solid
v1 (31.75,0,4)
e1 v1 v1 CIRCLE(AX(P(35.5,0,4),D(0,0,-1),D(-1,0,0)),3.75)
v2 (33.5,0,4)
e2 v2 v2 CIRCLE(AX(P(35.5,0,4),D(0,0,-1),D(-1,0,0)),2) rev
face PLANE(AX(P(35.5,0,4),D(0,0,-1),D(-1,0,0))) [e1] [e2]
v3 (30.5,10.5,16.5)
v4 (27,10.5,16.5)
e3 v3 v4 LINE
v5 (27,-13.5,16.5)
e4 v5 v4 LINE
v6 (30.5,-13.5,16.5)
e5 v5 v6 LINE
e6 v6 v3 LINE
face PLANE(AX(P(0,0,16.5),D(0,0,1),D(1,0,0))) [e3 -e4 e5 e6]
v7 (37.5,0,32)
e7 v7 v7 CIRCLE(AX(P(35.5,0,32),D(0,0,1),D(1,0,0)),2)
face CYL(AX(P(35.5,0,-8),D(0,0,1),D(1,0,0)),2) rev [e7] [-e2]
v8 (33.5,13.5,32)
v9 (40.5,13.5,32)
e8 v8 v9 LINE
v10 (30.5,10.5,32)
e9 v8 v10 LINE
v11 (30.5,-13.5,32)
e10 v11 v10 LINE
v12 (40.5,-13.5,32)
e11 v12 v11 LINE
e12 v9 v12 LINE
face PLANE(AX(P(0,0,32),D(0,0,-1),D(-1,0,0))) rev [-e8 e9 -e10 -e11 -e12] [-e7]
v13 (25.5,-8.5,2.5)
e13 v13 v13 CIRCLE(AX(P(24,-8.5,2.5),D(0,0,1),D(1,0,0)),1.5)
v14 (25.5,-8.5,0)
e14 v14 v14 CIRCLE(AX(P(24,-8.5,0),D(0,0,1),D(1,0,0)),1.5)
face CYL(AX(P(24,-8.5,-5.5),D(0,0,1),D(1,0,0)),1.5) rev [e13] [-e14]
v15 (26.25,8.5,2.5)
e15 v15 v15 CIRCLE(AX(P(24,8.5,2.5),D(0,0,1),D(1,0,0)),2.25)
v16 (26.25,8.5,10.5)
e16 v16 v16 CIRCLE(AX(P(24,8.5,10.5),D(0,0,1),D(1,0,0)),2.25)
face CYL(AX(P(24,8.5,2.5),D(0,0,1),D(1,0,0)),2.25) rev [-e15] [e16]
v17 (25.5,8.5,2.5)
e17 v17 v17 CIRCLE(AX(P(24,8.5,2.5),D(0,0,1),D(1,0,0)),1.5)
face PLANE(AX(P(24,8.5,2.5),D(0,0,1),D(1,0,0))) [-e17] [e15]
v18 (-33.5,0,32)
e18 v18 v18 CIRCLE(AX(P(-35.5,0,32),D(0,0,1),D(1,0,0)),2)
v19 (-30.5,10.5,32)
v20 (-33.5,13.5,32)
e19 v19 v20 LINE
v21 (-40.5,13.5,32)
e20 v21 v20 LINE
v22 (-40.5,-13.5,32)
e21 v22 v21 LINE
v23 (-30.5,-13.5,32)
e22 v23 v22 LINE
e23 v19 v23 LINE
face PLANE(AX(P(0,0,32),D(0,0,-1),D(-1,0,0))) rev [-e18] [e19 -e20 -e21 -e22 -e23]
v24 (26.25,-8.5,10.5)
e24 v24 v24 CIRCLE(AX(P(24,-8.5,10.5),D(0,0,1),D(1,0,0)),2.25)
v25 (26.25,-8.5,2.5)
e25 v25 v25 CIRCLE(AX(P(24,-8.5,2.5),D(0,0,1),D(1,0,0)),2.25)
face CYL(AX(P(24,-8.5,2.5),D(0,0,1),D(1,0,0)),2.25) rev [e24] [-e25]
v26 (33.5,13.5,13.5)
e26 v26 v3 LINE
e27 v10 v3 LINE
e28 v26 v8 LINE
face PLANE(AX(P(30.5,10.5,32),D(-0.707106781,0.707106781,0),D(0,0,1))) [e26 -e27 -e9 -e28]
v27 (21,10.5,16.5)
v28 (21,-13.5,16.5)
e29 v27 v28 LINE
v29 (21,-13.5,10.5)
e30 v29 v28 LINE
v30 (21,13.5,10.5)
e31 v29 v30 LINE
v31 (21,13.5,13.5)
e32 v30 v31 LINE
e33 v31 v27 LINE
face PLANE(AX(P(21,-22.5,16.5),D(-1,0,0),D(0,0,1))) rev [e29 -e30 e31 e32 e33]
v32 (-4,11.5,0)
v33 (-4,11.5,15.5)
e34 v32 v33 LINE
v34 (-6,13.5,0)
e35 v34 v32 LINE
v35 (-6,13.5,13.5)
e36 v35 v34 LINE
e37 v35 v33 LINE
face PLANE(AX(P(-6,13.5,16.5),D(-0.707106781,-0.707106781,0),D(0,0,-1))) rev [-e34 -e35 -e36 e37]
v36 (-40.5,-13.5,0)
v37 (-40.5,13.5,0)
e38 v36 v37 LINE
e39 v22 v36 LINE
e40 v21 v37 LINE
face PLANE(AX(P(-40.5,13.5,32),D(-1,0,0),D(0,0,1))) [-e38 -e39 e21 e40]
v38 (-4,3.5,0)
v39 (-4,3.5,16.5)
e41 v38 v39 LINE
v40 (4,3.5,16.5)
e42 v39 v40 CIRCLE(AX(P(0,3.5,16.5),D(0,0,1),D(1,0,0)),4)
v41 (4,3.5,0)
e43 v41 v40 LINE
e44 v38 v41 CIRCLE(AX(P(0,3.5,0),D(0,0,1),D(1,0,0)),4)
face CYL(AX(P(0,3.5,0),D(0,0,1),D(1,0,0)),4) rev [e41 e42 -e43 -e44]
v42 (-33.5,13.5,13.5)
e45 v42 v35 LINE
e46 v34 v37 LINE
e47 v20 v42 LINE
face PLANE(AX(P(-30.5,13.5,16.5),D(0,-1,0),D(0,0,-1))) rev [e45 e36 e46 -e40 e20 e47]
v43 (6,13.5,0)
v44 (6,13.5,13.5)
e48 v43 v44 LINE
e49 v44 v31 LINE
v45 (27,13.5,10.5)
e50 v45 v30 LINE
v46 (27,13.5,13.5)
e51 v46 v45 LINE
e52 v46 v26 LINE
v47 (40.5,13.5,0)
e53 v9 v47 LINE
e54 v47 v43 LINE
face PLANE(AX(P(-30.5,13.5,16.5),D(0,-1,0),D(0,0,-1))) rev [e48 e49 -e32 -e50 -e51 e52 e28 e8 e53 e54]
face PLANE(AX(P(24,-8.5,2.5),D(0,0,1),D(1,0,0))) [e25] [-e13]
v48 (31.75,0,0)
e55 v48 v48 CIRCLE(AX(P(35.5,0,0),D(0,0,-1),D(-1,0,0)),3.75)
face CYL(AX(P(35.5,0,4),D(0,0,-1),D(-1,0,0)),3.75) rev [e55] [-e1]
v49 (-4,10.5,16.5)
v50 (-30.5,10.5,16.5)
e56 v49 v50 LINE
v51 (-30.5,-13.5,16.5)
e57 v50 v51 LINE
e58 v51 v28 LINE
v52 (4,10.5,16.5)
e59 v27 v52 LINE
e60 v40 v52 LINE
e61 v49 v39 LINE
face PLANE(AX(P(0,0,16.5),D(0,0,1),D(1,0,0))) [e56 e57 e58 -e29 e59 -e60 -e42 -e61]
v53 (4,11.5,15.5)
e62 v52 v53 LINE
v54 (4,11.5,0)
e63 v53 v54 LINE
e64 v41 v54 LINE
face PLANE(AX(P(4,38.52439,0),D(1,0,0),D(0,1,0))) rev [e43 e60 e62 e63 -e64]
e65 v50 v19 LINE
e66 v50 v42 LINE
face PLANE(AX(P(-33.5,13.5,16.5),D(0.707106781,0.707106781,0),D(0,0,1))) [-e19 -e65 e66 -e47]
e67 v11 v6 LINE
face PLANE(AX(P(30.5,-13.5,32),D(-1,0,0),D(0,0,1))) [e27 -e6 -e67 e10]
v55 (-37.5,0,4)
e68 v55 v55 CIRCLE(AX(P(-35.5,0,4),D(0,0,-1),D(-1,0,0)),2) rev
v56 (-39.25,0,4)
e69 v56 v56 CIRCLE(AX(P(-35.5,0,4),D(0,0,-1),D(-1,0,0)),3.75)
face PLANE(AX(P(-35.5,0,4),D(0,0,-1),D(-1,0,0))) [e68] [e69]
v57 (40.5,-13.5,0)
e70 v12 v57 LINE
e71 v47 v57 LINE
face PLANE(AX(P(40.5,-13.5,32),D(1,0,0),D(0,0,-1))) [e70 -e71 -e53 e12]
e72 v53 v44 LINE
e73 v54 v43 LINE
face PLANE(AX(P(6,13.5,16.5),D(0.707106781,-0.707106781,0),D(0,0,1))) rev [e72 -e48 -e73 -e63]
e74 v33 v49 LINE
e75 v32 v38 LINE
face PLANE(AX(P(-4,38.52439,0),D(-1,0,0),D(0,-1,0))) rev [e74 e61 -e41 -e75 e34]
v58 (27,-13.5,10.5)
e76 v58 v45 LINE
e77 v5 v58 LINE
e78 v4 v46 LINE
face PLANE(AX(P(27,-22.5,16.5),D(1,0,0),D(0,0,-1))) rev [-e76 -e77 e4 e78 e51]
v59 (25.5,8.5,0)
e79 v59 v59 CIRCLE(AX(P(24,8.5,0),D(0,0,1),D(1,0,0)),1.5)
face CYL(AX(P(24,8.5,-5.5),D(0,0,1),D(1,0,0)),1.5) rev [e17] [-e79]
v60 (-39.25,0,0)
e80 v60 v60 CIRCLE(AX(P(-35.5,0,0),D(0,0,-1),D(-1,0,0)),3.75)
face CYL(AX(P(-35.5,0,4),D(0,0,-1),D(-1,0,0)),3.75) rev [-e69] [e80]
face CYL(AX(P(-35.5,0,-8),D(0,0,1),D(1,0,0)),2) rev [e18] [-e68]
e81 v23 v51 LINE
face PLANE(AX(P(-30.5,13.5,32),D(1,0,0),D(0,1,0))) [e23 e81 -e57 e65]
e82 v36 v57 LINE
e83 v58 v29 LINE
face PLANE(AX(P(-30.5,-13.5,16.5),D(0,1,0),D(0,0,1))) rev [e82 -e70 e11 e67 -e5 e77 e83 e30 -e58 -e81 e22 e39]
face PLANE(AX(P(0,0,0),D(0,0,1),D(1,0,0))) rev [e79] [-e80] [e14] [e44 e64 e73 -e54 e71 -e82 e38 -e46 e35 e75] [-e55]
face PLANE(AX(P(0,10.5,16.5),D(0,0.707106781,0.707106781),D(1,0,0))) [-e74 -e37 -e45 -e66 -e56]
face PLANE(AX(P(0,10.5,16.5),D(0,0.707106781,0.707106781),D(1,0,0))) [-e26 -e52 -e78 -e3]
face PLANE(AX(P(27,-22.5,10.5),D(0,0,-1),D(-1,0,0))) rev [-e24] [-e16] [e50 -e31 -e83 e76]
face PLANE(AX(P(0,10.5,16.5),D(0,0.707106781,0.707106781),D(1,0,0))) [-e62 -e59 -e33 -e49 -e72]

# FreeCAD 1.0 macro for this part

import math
import FreeCAD as App
import Part
import Sketcher


def edges_at(feature, points):
    """Names of the edges that pass closest to the given points."""
    edges = feature.Shape.Edges
    near = lambda p: min(range(len(edges)), key=lambda i: edges[i].distToShape(Part.Vertex(*p))[0])
    return sorted({f"Edge{near(p) + 1}" for p in points})

doc = App.newDocument("Part")
params = doc.addObject("Spreadsheet::Sheet", "Params")
for row, (alias, value) in enumerate([
    ("sketch1_width", "61 mm"),
    ("sketch1_height", "27 mm"),
    ("pad1_length", "16.5 mm"),
    ("sketch2_radius", "4 mm"),
    ("pocket1_length", "16.5 mm"),
    ("sketch3_width", "10 mm"),
    ("sketch3_height", "27 mm"),
    ("pad2_length", "32 mm"),
    ("sketch4_diameter", "4 mm"),
    ("pocket2_length", "40 mm"),
    ("sketch5_diameter", "7.5 mm"),
    ("pocket3_length", "4 mm"),
    ("chamfer_size", "2 mm"),
    ("chamfer2_size", "3 mm"),
    ("sketch6_width", "6 mm"),
    ("pocket4_length", "36 mm"),
    ("sketch7_diameter", "4.5 mm"),
    ("pocket5_length", "8 mm"),
    ("sketch8_diameter", "3 mm"),
    ("pocket6_length", "8 mm"),
    ("chamfer3_size", "3 mm"),
], start=1):
    params.set(f"A{row}", alias)
    params.set(f"B{row}", "=" + value)
    params.setAlias(f"B{row}", alias)

body = doc.addObject("PartDesign::Body", "Body")

# Sketch on XY plane
sketch1 = body.newObject("Sketcher::SketchObject", "Sketch")
sketch1.AttachmentSupport = (doc.getObject("XY_Plane"), [""])
sketch1.MapMode = "FlatFace"
sketch1.addGeometry([
    Part.LineSegment(App.Vector(-30, 14, 0), App.Vector(-30, -14, 0)),
    Part.LineSegment(App.Vector(-30, -14, 0), App.Vector(30, -14, 0)),
    Part.LineSegment(App.Vector(30, -14, 0), App.Vector(30, 14, 0)),
    Part.LineSegment(App.Vector(30, 14, 0), App.Vector(-30, 14, 0)),
], False)
sketch1.addConstraint([
    Sketcher.Constraint("Coincident", 0, 2, 1, 1),
    Sketcher.Constraint("Coincident", 1, 2, 2, 1),
    Sketcher.Constraint("Coincident", 2, 2, 3, 1),
    Sketcher.Constraint("Coincident", 3, 2, 0, 1),
    Sketcher.Constraint("Vertical", 0),
    Sketcher.Constraint("Horizontal", 1),
    Sketcher.Constraint("Vertical", 2),
    Sketcher.Constraint("Horizontal", 3),
    Sketcher.Constraint("Symmetric", 0, 2, 2, 2, -1, 1),
    Sketcher.Constraint("DistanceX", 1, 1, 1, 2, 61.0),
    Sketcher.Constraint("DistanceY", 0, 2, 0, 1, 27.0),
])
sketch1.setExpression("Constraints[9]", "Params.sketch1_width")
sketch1.setExpression("Constraints[10]", "Params.sketch1_height")
pad1 = body.newObject("PartDesign::Pad", "Pad")
pad1.Profile = sketch1
pad1.setExpression("Length", "Params.pad1_length")

# Sketch on XY plane
sketch2 = body.newObject("Sketcher::SketchObject", "Sketch001")
sketch2.AttachmentSupport = (doc.getObject("XY_Plane"), [""])
sketch2.MapMode = "FlatFace"
sketch2.AttachmentOffset = App.Placement(App.Vector(0, 0, 16.5), App.Rotation())
sketch2.addGeometry([
    Part.LineSegment(App.Vector(4, 38.5, 0), App.Vector(-4, 38.5, 0)),
    Part.LineSegment(App.Vector(-4, 38.5, 0), App.Vector(-4, 3.5, 0)),
    Part.ArcOfCircle(Part.Circle(App.Vector(0, 3.5, 0), App.Vector(0, 0, 1), 4), math.radians(180), math.radians(360)),
    Part.LineSegment(App.Vector(4, 3.5, 0), App.Vector(4, 38.5, 0)),
], False)
sketch2.addConstraint([
    Sketcher.Constraint("Coincident", 0, 2, 1, 1),
    Sketcher.Constraint("Tangent", 1, 2, 2, 1),
    Sketcher.Constraint("Tangent", 2, 2, 3, 1),
    Sketcher.Constraint("Coincident", 3, 2, 0, 1),
    Sketcher.Constraint("Horizontal", 0),
    Sketcher.Constraint("Vertical", 1),
    Sketcher.Constraint("Vertical", 3),
    Sketcher.Constraint("PointOnObject", 2, 3, -2),
    Sketcher.Constraint("Radius", 2, 4.0),
    Sketcher.Constraint("DistanceY", -1, 1, 2, 3, 3.5),
    Sketcher.Constraint("DistanceY", 1, 2, 1, 1, 35.02439),
])
sketch2.setExpression("Constraints[8]", "Params.sketch2_radius")
pocket1 = body.newObject("PartDesign::Pocket", "Pocket")
pocket1.Profile = sketch2
pocket1.setExpression("Length", "Params.pocket1_length")

# Sketch on XY plane
sketch3 = body.newObject("Sketcher::SketchObject", "Sketch002")
sketch3.AttachmentSupport = (doc.getObject("XY_Plane"), [""])
sketch3.MapMode = "FlatFace"
sketch3.addGeometry([
    Part.LineSegment(App.Vector(40, 14, 0), App.Vector(40, -14, 0)),  # 0
    Part.LineSegment(App.Vector(40, -14, 0), App.Vector(30, -14, 0)),  # 1
    Part.LineSegment(App.Vector(30, -14, 0), App.Vector(30, 14, 0)),  # 2
    Part.LineSegment(App.Vector(30, 14, 0), App.Vector(40, 14, 0)),  # 3
    Part.LineSegment(App.Vector(-30, 14, 0), App.Vector(-30, -14, 0)),  # 4
    Part.LineSegment(App.Vector(-30, -14, 0), App.Vector(-40, -14, 0)),  # 5
    Part.LineSegment(App.Vector(-40, -14, 0), App.Vector(-40, 14, 0)),  # 6
    Part.LineSegment(App.Vector(-40, 14, 0), App.Vector(-30, 14, 0)),  # 7
], False)
sketch3.addConstraint([
    Sketcher.Constraint("Coincident", 0, 2, 1, 1),
    Sketcher.Constraint("Coincident", 1, 2, 2, 1),
    Sketcher.Constraint("Coincident", 2, 2, 3, 1),
    Sketcher.Constraint("Coincident", 3, 2, 0, 1),
    Sketcher.Constraint("Coincident", 4, 2, 5, 1),
    Sketcher.Constraint("Coincident", 5, 2, 6, 1),
    Sketcher.Constraint("Coincident", 6, 2, 7, 1),
    Sketcher.Constraint("Coincident", 7, 2, 4, 1),
    Sketcher.Constraint("Vertical", 0),
    Sketcher.Constraint("Horizontal", 1),
    Sketcher.Constraint("Vertical", 2),
    Sketcher.Constraint("Horizontal", 3),
    Sketcher.Constraint("Vertical", 4),
    Sketcher.Constraint("Horizontal", 5),
    Sketcher.Constraint("Vertical", 6),
    Sketcher.Constraint("Horizontal", 7),
    Sketcher.Constraint("Symmetric", 2, 2, 4, 2, -1, 1),
    Sketcher.Constraint("Symmetric", 0, 2, 6, 2, -1, 1),
    Sketcher.Constraint("Horizontal", 1, 2, 4, 2),
    Sketcher.Constraint("DistanceX", 1, 2, 1, 1, 10.0),
    Sketcher.Constraint("DistanceY", 0, 2, 0, 1, 27.0),
    Sketcher.Constraint("DistanceX", 4, 2, 1, 2, 61.0),
])
sketch3.setExpression("Constraints[19]", "Params.sketch3_width")
sketch3.setExpression("Constraints[20]", "Params.sketch3_height")
pad2 = body.newObject("PartDesign::Pad", "Pad001")
pad2.Profile = sketch3
pad2.setExpression("Length", "Params.pad2_length")

# Sketch on XY plane
sketch4 = body.newObject("Sketcher::SketchObject", "Sketch003")
sketch4.AttachmentSupport = (doc.getObject("XY_Plane"), [""])
sketch4.MapMode = "FlatFace"
sketch4.AttachmentOffset = App.Placement(App.Vector(0, 0, 32), App.Rotation())
sketch4.addGeometry([
    Part.Circle(App.Vector(-35.5, 0, 0), App.Vector(0, 0, 1), 2),
    Part.Circle(App.Vector(35.5, 0, 0), App.Vector(0, 0, 1), 2),
], False)
sketch4.addConstraint([
    Sketcher.Constraint("Equal", 0, 1),
    Sketcher.Constraint("Symmetric", 0, 3, 1, 3, -1, 1),
    Sketcher.Constraint("PointOnObject", 0, 3, -1),
    Sketcher.Constraint("Diameter", 0, 4.0),
    Sketcher.Constraint("DistanceX", 0, 3, 1, 3, 71.0),
])
sketch4.setExpression("Constraints[3]", "Params.sketch4_diameter")
pocket2 = body.newObject("PartDesign::Pocket", "Pocket001")
pocket2.Profile = sketch4
pocket2.setExpression("Length", "Params.pocket2_length")

# Sketch on XY plane
sketch5 = body.newObject("Sketcher::SketchObject", "Sketch004")
sketch5.AttachmentSupport = (doc.getObject("XY_Plane"), [""])
sketch5.MapMode = "FlatFace"
sketch5.addGeometry([
    Part.Circle(App.Vector(35.5, 0, 0), App.Vector(0, 0, 1), 3.8),
    Part.Circle(App.Vector(-35.5, 0, 0), App.Vector(0, 0, 1), 3.8),
], False)
sketch5.addConstraint([
    Sketcher.Constraint("Equal", 0, 1),
    Sketcher.Constraint("Symmetric", 0, 3, 1, 3, -1, 1),
    Sketcher.Constraint("PointOnObject", 0, 3, -1),
    Sketcher.Constraint("Diameter", 0, 7.5),
    Sketcher.Constraint("DistanceX", 1, 3, 0, 3, 71.0),
])
sketch5.setExpression("Constraints[3]", "Params.sketch5_diameter")
pocket3 = body.newObject("PartDesign::Pocket", "Pocket002")
pocket3.Profile = sketch5
pocket3.setExpression("Length", "Params.pocket3_length")
pocket3.Reversed = True
doc.recompute()

chamfer = body.newObject("PartDesign::Chamfer", "Chamfer")
chamfer.Base = (pocket3, edges_at(pocket3, [(-4, 13.5, 8.25), (4, 13.5, 8.25)]))
chamfer.setExpression("Size", "Params.chamfer_size")
doc.recompute()

chamfer2 = body.newObject("PartDesign::Chamfer", "Chamfer001")
chamfer2.Base = (chamfer, edges_at(chamfer, [(30.5, 13.5, 24.25), (-30.5, 13.5, 24.25)]))
chamfer2.setExpression("Size", "Params.chamfer2_size")

# Sketch on XZ plane
sketch6 = body.newObject("Sketcher::SketchObject", "Sketch005")
sketch6.AttachmentSupport = (doc.getObject("XZ_Plane"), [""])
sketch6.MapMode = "FlatFace"
sketch6.AttachmentOffset = App.Placement(App.Vector(0, 0, -13.5), App.Rotation())
sketch6.addGeometry([
    Part.LineSegment(App.Vector(21, 10, 0), App.Vector(21, 16, 0)),
    Part.LineSegment(App.Vector(21, 16, 0), App.Vector(27, 16, 0)),
    Part.LineSegment(App.Vector(27, 16, 0), App.Vector(27, 10, 0)),
    Part.LineSegment(App.Vector(27, 10, 0), App.Vector(21, 10, 0)),
], False)
sketch6.addConstraint([
    Sketcher.Constraint("Coincident", 0, 2, 1, 1),
    Sketcher.Constraint("Coincident", 1, 2, 2, 1),
    Sketcher.Constraint("Coincident", 2, 2, 3, 1),
    Sketcher.Constraint("Coincident", 3, 2, 0, 1),
    Sketcher.Constraint("Vertical", 0),
    Sketcher.Constraint("Horizontal", 1),
    Sketcher.Constraint("Vertical", 2),
    Sketcher.Constraint("Horizontal", 3),
    Sketcher.Constraint("Equal", 3, 0),
    Sketcher.Constraint("DistanceX", 1, 1, 1, 2, 6.0),
    Sketcher.Constraint("DistanceX", -1, 1, 0, 2, 21.0),
    Sketcher.Constraint("DistanceY", -1, 1, 0, 2, 16.5),
])
sketch6.setExpression("Constraints[9]", "Params.sketch6_width")
pocket4 = body.newObject("PartDesign::Pocket", "Pocket003")
pocket4.Profile = sketch6
pocket4.setExpression("Length", "Params.pocket4_length")
pocket4.Reversed = True

# Sketch on XY plane
sketch7 = body.newObject("Sketcher::SketchObject", "Sketch006")
sketch7.AttachmentSupport = (doc.getObject("XY_Plane"), [""])
sketch7.MapMode = "FlatFace"
sketch7.AttachmentOffset = App.Placement(App.Vector(0, 0, 10.5), App.Rotation())
sketch7.addGeometry([
    Part.Circle(App.Vector(24, 8.5, 0), App.Vector(0, 0, 1), 2.2),
    Part.Circle(App.Vector(24, -8.5, 0), App.Vector(0, 0, 1), 2.2),
], False)
sketch7.addConstraint([
    Sketcher.Constraint("Equal", 0, 1),
    Sketcher.Constraint("Symmetric", 0, 3, 1, 3, -1),
    Sketcher.Constraint("Diameter", 0, 4.5),
    Sketcher.Constraint("DistanceX", -1, 1, 0, 3, 24.0),
    Sketcher.Constraint("DistanceY", 1, 3, 0, 3, 17.0),
])
sketch7.setExpression("Constraints[2]", "Params.sketch7_diameter")
pocket5 = body.newObject("PartDesign::Pocket", "Pocket004")
pocket5.Profile = sketch7
pocket5.setExpression("Length", "Params.pocket5_length")

# Sketch on XY plane
sketch8 = body.newObject("Sketcher::SketchObject", "Sketch007")
sketch8.AttachmentSupport = (doc.getObject("XY_Plane"), [""])
sketch8.MapMode = "FlatFace"
sketch8.AttachmentOffset = App.Placement(App.Vector(0, 0, 2.5), App.Rotation())
sketch8.addGeometry([
    Part.Circle(App.Vector(24, 8.5, 0), App.Vector(0, 0, 1), 1.5),
    Part.Circle(App.Vector(24, -8.5, 0), App.Vector(0, 0, 1), 1.5),
], False)
sketch8.addConstraint([
    Sketcher.Constraint("Equal", 0, 1),
    Sketcher.Constraint("Symmetric", 0, 3, 1, 3, -1),
    Sketcher.Constraint("Diameter", 0, 3.0),
    Sketcher.Constraint("DistanceX", -1, 1, 0, 3, 24.0),
    Sketcher.Constraint("DistanceY", 1, 3, 0, 3, 17.0),
])
sketch8.setExpression("Constraints[2]", "Params.sketch8_diameter")
pocket6 = body.newObject("PartDesign::Pocket", "Pocket005")
pocket6.Profile = sketch8
pocket6.setExpression("Length", "Params.pocket6_length")
doc.recompute()

chamfer3 = body.newObject("PartDesign::Chamfer", "Chamfer002")
chamfer3.Base = (pocket6, edges_at(pocket6, [(30.25, 13.5, 16.5), (13.5, 13.5, 16.5), (-19.75, 13.5, 16.5)]))
chamfer3.setExpression("Size", "Params.chamfer3_size")

doc.recompute()
